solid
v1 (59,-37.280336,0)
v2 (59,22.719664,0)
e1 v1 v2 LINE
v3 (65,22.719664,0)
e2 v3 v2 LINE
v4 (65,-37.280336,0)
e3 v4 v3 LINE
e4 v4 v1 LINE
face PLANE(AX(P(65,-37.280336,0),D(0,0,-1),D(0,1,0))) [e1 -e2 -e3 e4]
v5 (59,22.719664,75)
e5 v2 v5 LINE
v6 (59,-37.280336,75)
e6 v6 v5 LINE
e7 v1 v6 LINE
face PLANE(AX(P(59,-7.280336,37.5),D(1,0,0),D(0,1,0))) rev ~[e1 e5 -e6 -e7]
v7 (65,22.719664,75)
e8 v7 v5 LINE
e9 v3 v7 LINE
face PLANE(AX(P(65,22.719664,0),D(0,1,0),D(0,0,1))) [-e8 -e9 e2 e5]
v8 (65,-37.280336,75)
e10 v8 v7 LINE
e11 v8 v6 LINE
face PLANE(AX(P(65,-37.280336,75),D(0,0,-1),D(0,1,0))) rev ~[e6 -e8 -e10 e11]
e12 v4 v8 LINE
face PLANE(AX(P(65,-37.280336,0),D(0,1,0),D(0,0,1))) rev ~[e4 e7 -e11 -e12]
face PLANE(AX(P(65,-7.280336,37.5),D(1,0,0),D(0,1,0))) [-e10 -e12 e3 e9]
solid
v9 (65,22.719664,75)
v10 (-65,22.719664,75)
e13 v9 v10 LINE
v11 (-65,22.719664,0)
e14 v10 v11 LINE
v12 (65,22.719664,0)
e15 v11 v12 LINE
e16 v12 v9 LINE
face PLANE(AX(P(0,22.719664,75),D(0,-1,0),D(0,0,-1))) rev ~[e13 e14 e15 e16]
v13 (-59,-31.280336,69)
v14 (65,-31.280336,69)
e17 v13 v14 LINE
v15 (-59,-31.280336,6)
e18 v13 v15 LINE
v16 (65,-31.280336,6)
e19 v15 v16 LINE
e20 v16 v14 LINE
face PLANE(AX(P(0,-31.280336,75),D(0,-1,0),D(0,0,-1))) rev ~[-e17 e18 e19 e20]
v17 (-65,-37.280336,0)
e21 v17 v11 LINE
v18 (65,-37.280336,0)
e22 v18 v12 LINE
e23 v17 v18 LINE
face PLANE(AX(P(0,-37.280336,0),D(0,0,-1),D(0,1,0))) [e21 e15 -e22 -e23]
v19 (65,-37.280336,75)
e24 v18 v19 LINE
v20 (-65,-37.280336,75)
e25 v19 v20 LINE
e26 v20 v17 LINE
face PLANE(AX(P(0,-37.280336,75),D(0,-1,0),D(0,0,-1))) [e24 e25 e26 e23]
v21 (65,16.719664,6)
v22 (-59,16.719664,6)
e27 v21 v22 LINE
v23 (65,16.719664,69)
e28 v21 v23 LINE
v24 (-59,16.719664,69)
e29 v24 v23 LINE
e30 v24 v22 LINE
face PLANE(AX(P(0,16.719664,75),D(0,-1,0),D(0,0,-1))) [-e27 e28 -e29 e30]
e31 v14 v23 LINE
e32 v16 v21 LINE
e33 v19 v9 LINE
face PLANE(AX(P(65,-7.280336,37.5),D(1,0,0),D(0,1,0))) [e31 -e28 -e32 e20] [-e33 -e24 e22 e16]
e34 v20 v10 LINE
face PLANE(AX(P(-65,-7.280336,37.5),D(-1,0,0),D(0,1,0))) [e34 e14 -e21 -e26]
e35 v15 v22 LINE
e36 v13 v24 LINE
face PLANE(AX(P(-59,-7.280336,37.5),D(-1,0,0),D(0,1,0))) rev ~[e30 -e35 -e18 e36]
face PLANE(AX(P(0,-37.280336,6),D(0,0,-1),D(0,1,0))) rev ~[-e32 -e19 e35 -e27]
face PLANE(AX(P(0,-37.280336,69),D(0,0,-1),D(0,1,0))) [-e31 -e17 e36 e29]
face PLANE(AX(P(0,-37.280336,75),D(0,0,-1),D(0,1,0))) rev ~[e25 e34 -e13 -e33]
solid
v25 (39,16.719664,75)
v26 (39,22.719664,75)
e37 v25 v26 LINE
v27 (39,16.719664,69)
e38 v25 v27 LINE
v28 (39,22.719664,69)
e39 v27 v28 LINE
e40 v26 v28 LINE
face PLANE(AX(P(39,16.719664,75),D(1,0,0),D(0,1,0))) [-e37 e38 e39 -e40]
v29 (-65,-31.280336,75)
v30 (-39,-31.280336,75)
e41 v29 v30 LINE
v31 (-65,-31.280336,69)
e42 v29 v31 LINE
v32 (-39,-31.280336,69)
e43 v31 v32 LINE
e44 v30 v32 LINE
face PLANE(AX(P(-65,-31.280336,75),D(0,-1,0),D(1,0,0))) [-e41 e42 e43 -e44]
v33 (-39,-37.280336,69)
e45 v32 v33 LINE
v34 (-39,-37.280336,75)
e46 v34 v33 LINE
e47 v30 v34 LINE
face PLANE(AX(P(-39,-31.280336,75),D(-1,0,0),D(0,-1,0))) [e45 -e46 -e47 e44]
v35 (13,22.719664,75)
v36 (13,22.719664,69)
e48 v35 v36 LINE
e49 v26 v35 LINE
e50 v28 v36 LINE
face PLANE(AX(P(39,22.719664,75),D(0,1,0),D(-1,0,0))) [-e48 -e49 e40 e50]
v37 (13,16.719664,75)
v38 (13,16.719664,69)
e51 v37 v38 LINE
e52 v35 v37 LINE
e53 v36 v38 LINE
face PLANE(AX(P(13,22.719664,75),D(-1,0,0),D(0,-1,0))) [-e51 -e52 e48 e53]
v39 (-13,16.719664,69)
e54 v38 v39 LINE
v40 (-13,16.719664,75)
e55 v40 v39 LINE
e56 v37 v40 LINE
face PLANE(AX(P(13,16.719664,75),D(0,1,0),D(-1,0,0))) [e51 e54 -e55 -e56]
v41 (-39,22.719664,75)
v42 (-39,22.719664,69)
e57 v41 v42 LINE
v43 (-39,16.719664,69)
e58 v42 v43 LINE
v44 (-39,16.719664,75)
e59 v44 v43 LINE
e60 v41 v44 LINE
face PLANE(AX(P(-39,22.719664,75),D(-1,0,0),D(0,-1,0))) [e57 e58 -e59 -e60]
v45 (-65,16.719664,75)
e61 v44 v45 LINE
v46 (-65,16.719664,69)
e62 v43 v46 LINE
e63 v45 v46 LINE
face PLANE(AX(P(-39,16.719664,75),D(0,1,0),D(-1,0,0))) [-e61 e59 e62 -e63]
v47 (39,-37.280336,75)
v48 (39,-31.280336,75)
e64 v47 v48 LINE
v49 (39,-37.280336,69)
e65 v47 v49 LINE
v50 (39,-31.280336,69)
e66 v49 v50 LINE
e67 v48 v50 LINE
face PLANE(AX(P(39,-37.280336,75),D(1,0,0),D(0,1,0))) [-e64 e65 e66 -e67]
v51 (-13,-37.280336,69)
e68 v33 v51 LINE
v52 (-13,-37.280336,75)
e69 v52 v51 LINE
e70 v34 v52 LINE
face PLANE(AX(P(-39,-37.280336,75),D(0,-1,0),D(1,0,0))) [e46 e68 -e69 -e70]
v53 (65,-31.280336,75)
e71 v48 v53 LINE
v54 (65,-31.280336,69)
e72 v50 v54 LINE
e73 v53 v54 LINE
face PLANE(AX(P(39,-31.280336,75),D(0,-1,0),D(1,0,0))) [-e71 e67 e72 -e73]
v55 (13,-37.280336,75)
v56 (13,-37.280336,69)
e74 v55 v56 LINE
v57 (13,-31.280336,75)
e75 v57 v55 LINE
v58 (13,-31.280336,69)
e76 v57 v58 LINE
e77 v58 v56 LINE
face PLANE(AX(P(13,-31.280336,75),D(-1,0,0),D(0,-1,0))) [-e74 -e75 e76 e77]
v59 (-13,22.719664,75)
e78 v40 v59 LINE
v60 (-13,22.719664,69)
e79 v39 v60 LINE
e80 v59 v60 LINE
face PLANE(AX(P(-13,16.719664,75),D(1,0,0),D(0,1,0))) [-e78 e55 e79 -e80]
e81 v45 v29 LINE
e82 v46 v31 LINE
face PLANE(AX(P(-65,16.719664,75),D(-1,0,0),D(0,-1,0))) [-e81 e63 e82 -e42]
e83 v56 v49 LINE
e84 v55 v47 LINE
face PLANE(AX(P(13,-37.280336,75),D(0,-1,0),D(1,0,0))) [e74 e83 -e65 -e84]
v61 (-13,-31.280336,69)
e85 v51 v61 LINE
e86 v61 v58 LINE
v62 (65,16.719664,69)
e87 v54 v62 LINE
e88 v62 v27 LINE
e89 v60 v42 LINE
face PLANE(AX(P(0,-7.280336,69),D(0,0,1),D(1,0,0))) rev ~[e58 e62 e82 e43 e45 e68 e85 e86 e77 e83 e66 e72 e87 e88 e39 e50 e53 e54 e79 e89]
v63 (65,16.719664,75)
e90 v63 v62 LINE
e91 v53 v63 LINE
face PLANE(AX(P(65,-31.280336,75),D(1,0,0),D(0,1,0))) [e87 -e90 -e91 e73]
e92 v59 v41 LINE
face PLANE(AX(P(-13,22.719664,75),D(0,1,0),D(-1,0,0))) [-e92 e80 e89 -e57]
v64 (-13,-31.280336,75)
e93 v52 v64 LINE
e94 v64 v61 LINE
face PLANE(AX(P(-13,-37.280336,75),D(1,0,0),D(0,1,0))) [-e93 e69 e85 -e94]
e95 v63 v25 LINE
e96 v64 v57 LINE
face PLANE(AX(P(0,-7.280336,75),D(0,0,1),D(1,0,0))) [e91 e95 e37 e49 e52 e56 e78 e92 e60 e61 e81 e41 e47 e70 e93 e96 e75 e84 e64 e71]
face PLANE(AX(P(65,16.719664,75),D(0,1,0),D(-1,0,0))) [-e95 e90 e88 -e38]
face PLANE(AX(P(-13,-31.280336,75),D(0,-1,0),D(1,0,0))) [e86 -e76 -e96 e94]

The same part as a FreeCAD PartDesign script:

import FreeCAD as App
import Part
import Sketcher


def faces_at(feature, points):
    """Names of the faces that lie closest to the given points."""
    faces = feature.Shape.Faces
    near = lambda p: min(range(len(faces)), key=lambda i: faces[i].distToShape(Part.Vertex(*p))[0])
    return sorted({f"Face{near(p) + 1}" for p in points})


def add_polygon(sketch, points):
    """Adds a closed chain of lines whose ends are joined by coincident constraints."""
    first, n = sketch.GeometryCount, len(points)
    for a, b in zip(points, points[1:] + points[:1]):
        sketch.addGeometry(Part.LineSegment(App.Vector(*a, 0), App.Vector(*b, 0)), False)
    for i in range(n):
        sketch.addConstraint(Sketcher.Constraint("Coincident", first + i, 2, first + (i + 1) % n, 1))

doc = App.newDocument("Part")
body = doc.addObject("PartDesign::Body", "Body")

sketch1 = doc.addObject("Sketcher::SketchObject", "Sketch")
body.addObject(sketch1)
sketch1.AttachmentSupport = (doc.YZ_Plane, [""])
sketch1.MapMode = "FlatFace"
add_polygon(sketch1, [(-37, 75), (-37, 0), (23, 0), (23, 75)])
sketch1.addConstraint([
    Sketcher.Constraint("Vertical", 0),
    Sketcher.Constraint("Horizontal", 1),
    Sketcher.Constraint("Vertical", 2),
    Sketcher.Constraint("Horizontal", 3),
    Sketcher.Constraint("PointOnObject", 0, 2, -1),
    Sketcher.Constraint("DistanceX", 1, 1, 1, 2, 60.0),
    Sketcher.Constraint("DistanceY", 0, 2, 0, 1, 75.0),
    Sketcher.Constraint("DistanceX", 0, 2, -1, 1, 37.280336),
])
pad1 = doc.addObject("PartDesign::Pad", "Pad")
body.addObject(pad1)
pad1.Profile = sketch1
pad1.Length = 65

sketch2 = doc.addObject("Sketcher::SketchObject", "Sketch001")
body.addObject(sketch2)
sketch2.AttachmentSupport = (doc.YZ_Plane, [""])
sketch2.MapMode = "FlatFace"
add_polygon(sketch2, [(-37, 0), (-37, 75), (23, 75), (23, 0)])
sketch2.addConstraint([
    Sketcher.Constraint("Vertical", 0),
    Sketcher.Constraint("Horizontal", 1),
    Sketcher.Constraint("Vertical", 2),
    Sketcher.Constraint("Horizontal", 3),
    Sketcher.Constraint("PointOnObject", 2, 2, -1),
    Sketcher.Constraint("DistanceX", 1, 1, 1, 2, 60.0),
    Sketcher.Constraint("DistanceY", 0, 1, 0, 2, 75.0),
    Sketcher.Constraint("DistanceX", 0, 2, -1, 1, 37.280336),
])
pad2 = doc.addObject("PartDesign::Pad", "Pad001")
body.addObject(pad2)
pad2.Profile = sketch2
pad2.Length = 65
pad2.Reversed = True
doc.recompute()

thickness = doc.addObject("PartDesign::Thickness", "Thickness")
body.addObject(thickness)
thickness.Base = (pad2, faces_at(pad2, [(65, -7.28, 37.5)]))
thickness.Value = 6
thickness.Reversed = True
thickness.Join = "Arc"
body2 = doc.addObject("PartDesign::Body", "Body001")

sketch3 = doc.addObject("Sketcher::SketchObject", "Sketch002")
body2.addObject(sketch3)
sketch3.AttachmentSupport = (doc.getObject("XY_Plane001"), [""])
sketch3.MapMode = "FlatFace"
sketch3.AttachmentOffset = App.Placement(App.Vector(0, 0, 75), App.Rotation())
add_polygon(sketch3, [(-13, 23), (-39, 23), (-39, 17), (-65, 17), (-65, -31), (-39, -31), (-39, -37), (-13, -37), (-13, -31), (13, -31), (13, -37), (39, -37), (39, -31), (65, -31), (65, 17), (39, 17), (39, 23), (13, 23), (13, 17), (-13, 17)])
sketch3.addConstraint([
    Sketcher.Constraint("Horizontal", 0),
    Sketcher.Constraint("Vertical", 1),
    Sketcher.Constraint("Horizontal", 2),
    Sketcher.Constraint("Vertical", 3),
    Sketcher.Constraint("Horizontal", 4),
    Sketcher.Constraint("Vertical", 5),
    Sketcher.Constraint("Horizontal", 6),
    Sketcher.Constraint("Vertical", 7),
    Sketcher.Constraint("Horizontal", 8),
    Sketcher.Constraint("Vertical", 9),
    Sketcher.Constraint("Horizontal", 10),
    Sketcher.Constraint("Vertical", 11),
    Sketcher.Constraint("Horizontal", 12),
    Sketcher.Constraint("Vertical", 13),
    Sketcher.Constraint("Horizontal", 14),
    Sketcher.Constraint("Vertical", 15),
    Sketcher.Constraint("Horizontal", 16),
    Sketcher.Constraint("Vertical", 17),
    Sketcher.Constraint("Horizontal", 18),
    Sketcher.Constraint("Vertical", 19),
    Sketcher.Constraint("Symmetric", 6, 2, 9, 2, -2),
    Sketcher.Constraint("Symmetric", 4, 2, 11, 2, -2),
    Sketcher.Constraint("Symmetric", 2, 2, 13, 2, -2),
    Sketcher.Constraint("Symmetric", 0, 2, 15, 2, -2),
    Sketcher.Constraint("Horizontal", 4, 2, 7, 2),
    Sketcher.Constraint("Horizontal", 14, 2, 17, 2),
    Sketcher.Constraint("Vertical", 1, 2, 4, 2),
    Sketcher.Constraint("Vertical", 9, 2, 16, 2),
    Sketcher.Constraint("Vertical", 7, 2, 18, 2),
    Sketcher.Constraint("Equal", 0, 2),
    Sketcher.Constraint("Equal", 6, 8),
    Sketcher.Constraint("Equal", 1, 5),
    Sketcher.Constraint("DistanceX", 0, 2, 0, 1, 26.0),
    Sketcher.Constraint("DistanceY", 1, 2, 1, 1, 6.0),
    Sketcher.Constraint("DistanceY", 3, 2, 3, 1, 48.0),
    Sketcher.Constraint("DistanceY", -1, 1, 0, 2, 22.719664),
])
pad3 = doc.addObject("PartDesign::Pad", "Pad002")
body2.addObject(pad3)
pad3.Profile = sketch3
pad3.Length = 6
pad3.Reversed = True
body3 = doc.addObject("PartDesign::Body", "Body002")

sketch4 = doc.addObject("Sketcher::SketchObject", "Sketch003")
body3.addObject(sketch4)
sketch4.AttachmentSupport = (doc.getObject("YZ_Plane002"), [""])
sketch4.MapMode = "FlatFace"
sketch4.AttachmentOffset = App.Placement(App.Vector(0, 0, 65), App.Rotation())
add_polygon(sketch4, [(-37, 75), (-37, 0), (23, 0), (23, 75)])
sketch4.addConstraint([
    Sketcher.Constraint("Vertical", 0),
    Sketcher.Constraint("Horizontal", 1),
    Sketcher.Constraint("Vertical", 2),
    Sketcher.Constraint("Horizontal", 3),
    Sketcher.Constraint("PointOnObject", 0, 2, -1),
    Sketcher.Constraint("DistanceX", 1, 1, 1, 2, 60.0),
    Sketcher.Constraint("DistanceY", 0, 2, 0, 1, 75.0),
    Sketcher.Constraint("DistanceX", 0, 2, -1, 1, 37.280336),
])
pad4 = doc.addObject("PartDesign::Pad", "Pad003")
body3.addObject(pad4)
pad4.Profile = sketch4
pad4.Length = 6
pad4.Reversed = True

doc.recompute()
